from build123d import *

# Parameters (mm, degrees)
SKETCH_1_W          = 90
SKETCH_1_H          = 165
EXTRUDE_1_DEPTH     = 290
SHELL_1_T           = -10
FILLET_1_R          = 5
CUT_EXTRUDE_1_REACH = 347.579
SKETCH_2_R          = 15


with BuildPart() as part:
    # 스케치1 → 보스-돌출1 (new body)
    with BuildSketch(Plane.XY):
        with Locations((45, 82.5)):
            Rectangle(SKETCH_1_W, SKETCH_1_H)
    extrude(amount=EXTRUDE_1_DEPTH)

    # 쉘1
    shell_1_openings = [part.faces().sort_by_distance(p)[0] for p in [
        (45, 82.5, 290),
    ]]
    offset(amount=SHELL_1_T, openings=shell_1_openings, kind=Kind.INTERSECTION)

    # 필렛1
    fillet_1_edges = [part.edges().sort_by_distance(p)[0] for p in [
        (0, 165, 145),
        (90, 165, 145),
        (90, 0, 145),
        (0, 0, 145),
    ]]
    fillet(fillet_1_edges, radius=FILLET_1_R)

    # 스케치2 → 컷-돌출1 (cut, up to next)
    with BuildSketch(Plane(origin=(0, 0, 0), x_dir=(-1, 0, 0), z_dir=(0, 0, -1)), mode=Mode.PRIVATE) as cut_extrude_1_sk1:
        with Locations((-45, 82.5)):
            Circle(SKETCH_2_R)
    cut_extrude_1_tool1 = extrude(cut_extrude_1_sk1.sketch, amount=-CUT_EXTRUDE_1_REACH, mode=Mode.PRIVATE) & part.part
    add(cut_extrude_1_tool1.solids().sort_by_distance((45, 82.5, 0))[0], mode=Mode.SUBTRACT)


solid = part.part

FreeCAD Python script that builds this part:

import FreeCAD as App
import Part
import Sketcher


def edges_at(feature, points):
    """Names of the edges that pass closest to the given points."""
    edges = feature.Shape.Edges
    near = lambda p: min(range(len(edges)), key=lambda i: edges[i].distToShape(Part.Vertex(*p))[0])
    return sorted({f"Edge{near(p) + 1}" for p in points})


def faces_at(feature, points):
    """Names of the faces that lie closest to the given points."""
    faces = feature.Shape.Faces
    near = lambda p: min(range(len(faces)), key=lambda i: faces[i].distToShape(Part.Vertex(*p))[0])
    return sorted({f"Face{near(p) + 1}" for p in points})


def add_polygon(sketch, points):
    """Adds a closed chain of lines whose ends are joined by coincident constraints."""
    first, n = sketch.GeometryCount, len(points)
    for a, b in zip(points, points[1:] + points[:1]):
        sketch.addGeometry(Part.LineSegment(App.Vector(*a, 0), App.Vector(*b, 0)), False)
    for i in range(n):
        sketch.addConstraint(Sketcher.Constraint("Coincident", first + i, 2, first + (i + 1) % n, 1))

doc = App.newDocument("Part")
params = doc.addObject("Spreadsheet::Sheet", "Params")
for row, (alias, value) in enumerate([
    ("sketch1_width", "90 mm"),
    ("sketch1_height", "165 mm"),
    ("pad1_length", "290 mm"),
    ("thickness_wall", "10 mm"),
    ("fillet_radius", "5 mm"),
    ("sketch2_diameter", "30 mm"),
], start=1):
    params.set(f"A{row}", alias)
    params.set(f"B{row}", "=" + value)
    params.setAlias(f"B{row}", alias)

body = doc.addObject("PartDesign::Body", "Body")

sketch1 = body.newObject("Sketcher::SketchObject", "Sketch")
sketch1.AttachmentSupport = (doc.getObject("XY_Plane"), [""])
sketch1.MapMode = "FlatFace"
add_polygon(sketch1, [(0, 165), (0, 0), (90, 0), (90, 165)])
sketch1.addConstraint([
    Sketcher.Constraint("Vertical", 0),
    Sketcher.Constraint("Horizontal", 1),
    Sketcher.Constraint("Vertical", 2),
    Sketcher.Constraint("Horizontal", 3),
    Sketcher.Constraint("Coincident", 0, 2, -1, 1),
    Sketcher.Constraint("DistanceX", 1, 1, 1, 2, 90.0),
    Sketcher.Constraint("DistanceY", 0, 2, 0, 1, 165.0),
])
sketch1.setExpression("Constraints[9]", "Params.sketch1_width")
sketch1.setExpression("Constraints[10]", "Params.sketch1_height")
pad1 = body.newObject("PartDesign::Pad", "Pad")
pad1.Profile = sketch1
pad1.setExpression("Length", "Params.pad1_length")
doc.recompute()

thickness = body.newObject("PartDesign::Thickness", "Thickness")
thickness.Base = (pad1, faces_at(pad1, [(45, 82.5, 290)]))
thickness.setExpression("Value", "Params.thickness_wall")
thickness.Reversed = True
thickness.Join = "Intersection"
doc.recompute()

fillet = body.newObject("PartDesign::Fillet", "Fillet")
fillet.Base = (thickness, edges_at(thickness, [
    (0, 165, 145),
    (90, 165, 145),
    (90, 0, 145),
    (0, 0, 145),
]))
fillet.setExpression("Radius", "Params.fillet_radius")

sketch2 = body.newObject("Sketcher::SketchObject", "Sketch001")
sketch2.AttachmentSupport = (doc.getObject("XY_Plane"), [""])
sketch2.MapMode = "FlatFace"
sketch2.addGeometry(Part.Circle(App.Vector(45, 82, 0), App.Vector(0, 0, 1), 15), False)
sketch2.addConstraint([
    Sketcher.Constraint("Diameter", 0, 30.0),
    Sketcher.Constraint("DistanceX", -1, 1, 0, 3, 45.0),
    Sketcher.Constraint("DistanceY", -1, 1, 0, 3, 82.5),
])
sketch2.setExpression("Constraints[0]", "Params.sketch2_diameter")
pocket1 = body.newObject("PartDesign::Pocket", "Pocket")
pocket1.Profile = sketch2
pocket1.Type = "UpToFirst"
pocket1.Reversed = True

doc.recompute()
